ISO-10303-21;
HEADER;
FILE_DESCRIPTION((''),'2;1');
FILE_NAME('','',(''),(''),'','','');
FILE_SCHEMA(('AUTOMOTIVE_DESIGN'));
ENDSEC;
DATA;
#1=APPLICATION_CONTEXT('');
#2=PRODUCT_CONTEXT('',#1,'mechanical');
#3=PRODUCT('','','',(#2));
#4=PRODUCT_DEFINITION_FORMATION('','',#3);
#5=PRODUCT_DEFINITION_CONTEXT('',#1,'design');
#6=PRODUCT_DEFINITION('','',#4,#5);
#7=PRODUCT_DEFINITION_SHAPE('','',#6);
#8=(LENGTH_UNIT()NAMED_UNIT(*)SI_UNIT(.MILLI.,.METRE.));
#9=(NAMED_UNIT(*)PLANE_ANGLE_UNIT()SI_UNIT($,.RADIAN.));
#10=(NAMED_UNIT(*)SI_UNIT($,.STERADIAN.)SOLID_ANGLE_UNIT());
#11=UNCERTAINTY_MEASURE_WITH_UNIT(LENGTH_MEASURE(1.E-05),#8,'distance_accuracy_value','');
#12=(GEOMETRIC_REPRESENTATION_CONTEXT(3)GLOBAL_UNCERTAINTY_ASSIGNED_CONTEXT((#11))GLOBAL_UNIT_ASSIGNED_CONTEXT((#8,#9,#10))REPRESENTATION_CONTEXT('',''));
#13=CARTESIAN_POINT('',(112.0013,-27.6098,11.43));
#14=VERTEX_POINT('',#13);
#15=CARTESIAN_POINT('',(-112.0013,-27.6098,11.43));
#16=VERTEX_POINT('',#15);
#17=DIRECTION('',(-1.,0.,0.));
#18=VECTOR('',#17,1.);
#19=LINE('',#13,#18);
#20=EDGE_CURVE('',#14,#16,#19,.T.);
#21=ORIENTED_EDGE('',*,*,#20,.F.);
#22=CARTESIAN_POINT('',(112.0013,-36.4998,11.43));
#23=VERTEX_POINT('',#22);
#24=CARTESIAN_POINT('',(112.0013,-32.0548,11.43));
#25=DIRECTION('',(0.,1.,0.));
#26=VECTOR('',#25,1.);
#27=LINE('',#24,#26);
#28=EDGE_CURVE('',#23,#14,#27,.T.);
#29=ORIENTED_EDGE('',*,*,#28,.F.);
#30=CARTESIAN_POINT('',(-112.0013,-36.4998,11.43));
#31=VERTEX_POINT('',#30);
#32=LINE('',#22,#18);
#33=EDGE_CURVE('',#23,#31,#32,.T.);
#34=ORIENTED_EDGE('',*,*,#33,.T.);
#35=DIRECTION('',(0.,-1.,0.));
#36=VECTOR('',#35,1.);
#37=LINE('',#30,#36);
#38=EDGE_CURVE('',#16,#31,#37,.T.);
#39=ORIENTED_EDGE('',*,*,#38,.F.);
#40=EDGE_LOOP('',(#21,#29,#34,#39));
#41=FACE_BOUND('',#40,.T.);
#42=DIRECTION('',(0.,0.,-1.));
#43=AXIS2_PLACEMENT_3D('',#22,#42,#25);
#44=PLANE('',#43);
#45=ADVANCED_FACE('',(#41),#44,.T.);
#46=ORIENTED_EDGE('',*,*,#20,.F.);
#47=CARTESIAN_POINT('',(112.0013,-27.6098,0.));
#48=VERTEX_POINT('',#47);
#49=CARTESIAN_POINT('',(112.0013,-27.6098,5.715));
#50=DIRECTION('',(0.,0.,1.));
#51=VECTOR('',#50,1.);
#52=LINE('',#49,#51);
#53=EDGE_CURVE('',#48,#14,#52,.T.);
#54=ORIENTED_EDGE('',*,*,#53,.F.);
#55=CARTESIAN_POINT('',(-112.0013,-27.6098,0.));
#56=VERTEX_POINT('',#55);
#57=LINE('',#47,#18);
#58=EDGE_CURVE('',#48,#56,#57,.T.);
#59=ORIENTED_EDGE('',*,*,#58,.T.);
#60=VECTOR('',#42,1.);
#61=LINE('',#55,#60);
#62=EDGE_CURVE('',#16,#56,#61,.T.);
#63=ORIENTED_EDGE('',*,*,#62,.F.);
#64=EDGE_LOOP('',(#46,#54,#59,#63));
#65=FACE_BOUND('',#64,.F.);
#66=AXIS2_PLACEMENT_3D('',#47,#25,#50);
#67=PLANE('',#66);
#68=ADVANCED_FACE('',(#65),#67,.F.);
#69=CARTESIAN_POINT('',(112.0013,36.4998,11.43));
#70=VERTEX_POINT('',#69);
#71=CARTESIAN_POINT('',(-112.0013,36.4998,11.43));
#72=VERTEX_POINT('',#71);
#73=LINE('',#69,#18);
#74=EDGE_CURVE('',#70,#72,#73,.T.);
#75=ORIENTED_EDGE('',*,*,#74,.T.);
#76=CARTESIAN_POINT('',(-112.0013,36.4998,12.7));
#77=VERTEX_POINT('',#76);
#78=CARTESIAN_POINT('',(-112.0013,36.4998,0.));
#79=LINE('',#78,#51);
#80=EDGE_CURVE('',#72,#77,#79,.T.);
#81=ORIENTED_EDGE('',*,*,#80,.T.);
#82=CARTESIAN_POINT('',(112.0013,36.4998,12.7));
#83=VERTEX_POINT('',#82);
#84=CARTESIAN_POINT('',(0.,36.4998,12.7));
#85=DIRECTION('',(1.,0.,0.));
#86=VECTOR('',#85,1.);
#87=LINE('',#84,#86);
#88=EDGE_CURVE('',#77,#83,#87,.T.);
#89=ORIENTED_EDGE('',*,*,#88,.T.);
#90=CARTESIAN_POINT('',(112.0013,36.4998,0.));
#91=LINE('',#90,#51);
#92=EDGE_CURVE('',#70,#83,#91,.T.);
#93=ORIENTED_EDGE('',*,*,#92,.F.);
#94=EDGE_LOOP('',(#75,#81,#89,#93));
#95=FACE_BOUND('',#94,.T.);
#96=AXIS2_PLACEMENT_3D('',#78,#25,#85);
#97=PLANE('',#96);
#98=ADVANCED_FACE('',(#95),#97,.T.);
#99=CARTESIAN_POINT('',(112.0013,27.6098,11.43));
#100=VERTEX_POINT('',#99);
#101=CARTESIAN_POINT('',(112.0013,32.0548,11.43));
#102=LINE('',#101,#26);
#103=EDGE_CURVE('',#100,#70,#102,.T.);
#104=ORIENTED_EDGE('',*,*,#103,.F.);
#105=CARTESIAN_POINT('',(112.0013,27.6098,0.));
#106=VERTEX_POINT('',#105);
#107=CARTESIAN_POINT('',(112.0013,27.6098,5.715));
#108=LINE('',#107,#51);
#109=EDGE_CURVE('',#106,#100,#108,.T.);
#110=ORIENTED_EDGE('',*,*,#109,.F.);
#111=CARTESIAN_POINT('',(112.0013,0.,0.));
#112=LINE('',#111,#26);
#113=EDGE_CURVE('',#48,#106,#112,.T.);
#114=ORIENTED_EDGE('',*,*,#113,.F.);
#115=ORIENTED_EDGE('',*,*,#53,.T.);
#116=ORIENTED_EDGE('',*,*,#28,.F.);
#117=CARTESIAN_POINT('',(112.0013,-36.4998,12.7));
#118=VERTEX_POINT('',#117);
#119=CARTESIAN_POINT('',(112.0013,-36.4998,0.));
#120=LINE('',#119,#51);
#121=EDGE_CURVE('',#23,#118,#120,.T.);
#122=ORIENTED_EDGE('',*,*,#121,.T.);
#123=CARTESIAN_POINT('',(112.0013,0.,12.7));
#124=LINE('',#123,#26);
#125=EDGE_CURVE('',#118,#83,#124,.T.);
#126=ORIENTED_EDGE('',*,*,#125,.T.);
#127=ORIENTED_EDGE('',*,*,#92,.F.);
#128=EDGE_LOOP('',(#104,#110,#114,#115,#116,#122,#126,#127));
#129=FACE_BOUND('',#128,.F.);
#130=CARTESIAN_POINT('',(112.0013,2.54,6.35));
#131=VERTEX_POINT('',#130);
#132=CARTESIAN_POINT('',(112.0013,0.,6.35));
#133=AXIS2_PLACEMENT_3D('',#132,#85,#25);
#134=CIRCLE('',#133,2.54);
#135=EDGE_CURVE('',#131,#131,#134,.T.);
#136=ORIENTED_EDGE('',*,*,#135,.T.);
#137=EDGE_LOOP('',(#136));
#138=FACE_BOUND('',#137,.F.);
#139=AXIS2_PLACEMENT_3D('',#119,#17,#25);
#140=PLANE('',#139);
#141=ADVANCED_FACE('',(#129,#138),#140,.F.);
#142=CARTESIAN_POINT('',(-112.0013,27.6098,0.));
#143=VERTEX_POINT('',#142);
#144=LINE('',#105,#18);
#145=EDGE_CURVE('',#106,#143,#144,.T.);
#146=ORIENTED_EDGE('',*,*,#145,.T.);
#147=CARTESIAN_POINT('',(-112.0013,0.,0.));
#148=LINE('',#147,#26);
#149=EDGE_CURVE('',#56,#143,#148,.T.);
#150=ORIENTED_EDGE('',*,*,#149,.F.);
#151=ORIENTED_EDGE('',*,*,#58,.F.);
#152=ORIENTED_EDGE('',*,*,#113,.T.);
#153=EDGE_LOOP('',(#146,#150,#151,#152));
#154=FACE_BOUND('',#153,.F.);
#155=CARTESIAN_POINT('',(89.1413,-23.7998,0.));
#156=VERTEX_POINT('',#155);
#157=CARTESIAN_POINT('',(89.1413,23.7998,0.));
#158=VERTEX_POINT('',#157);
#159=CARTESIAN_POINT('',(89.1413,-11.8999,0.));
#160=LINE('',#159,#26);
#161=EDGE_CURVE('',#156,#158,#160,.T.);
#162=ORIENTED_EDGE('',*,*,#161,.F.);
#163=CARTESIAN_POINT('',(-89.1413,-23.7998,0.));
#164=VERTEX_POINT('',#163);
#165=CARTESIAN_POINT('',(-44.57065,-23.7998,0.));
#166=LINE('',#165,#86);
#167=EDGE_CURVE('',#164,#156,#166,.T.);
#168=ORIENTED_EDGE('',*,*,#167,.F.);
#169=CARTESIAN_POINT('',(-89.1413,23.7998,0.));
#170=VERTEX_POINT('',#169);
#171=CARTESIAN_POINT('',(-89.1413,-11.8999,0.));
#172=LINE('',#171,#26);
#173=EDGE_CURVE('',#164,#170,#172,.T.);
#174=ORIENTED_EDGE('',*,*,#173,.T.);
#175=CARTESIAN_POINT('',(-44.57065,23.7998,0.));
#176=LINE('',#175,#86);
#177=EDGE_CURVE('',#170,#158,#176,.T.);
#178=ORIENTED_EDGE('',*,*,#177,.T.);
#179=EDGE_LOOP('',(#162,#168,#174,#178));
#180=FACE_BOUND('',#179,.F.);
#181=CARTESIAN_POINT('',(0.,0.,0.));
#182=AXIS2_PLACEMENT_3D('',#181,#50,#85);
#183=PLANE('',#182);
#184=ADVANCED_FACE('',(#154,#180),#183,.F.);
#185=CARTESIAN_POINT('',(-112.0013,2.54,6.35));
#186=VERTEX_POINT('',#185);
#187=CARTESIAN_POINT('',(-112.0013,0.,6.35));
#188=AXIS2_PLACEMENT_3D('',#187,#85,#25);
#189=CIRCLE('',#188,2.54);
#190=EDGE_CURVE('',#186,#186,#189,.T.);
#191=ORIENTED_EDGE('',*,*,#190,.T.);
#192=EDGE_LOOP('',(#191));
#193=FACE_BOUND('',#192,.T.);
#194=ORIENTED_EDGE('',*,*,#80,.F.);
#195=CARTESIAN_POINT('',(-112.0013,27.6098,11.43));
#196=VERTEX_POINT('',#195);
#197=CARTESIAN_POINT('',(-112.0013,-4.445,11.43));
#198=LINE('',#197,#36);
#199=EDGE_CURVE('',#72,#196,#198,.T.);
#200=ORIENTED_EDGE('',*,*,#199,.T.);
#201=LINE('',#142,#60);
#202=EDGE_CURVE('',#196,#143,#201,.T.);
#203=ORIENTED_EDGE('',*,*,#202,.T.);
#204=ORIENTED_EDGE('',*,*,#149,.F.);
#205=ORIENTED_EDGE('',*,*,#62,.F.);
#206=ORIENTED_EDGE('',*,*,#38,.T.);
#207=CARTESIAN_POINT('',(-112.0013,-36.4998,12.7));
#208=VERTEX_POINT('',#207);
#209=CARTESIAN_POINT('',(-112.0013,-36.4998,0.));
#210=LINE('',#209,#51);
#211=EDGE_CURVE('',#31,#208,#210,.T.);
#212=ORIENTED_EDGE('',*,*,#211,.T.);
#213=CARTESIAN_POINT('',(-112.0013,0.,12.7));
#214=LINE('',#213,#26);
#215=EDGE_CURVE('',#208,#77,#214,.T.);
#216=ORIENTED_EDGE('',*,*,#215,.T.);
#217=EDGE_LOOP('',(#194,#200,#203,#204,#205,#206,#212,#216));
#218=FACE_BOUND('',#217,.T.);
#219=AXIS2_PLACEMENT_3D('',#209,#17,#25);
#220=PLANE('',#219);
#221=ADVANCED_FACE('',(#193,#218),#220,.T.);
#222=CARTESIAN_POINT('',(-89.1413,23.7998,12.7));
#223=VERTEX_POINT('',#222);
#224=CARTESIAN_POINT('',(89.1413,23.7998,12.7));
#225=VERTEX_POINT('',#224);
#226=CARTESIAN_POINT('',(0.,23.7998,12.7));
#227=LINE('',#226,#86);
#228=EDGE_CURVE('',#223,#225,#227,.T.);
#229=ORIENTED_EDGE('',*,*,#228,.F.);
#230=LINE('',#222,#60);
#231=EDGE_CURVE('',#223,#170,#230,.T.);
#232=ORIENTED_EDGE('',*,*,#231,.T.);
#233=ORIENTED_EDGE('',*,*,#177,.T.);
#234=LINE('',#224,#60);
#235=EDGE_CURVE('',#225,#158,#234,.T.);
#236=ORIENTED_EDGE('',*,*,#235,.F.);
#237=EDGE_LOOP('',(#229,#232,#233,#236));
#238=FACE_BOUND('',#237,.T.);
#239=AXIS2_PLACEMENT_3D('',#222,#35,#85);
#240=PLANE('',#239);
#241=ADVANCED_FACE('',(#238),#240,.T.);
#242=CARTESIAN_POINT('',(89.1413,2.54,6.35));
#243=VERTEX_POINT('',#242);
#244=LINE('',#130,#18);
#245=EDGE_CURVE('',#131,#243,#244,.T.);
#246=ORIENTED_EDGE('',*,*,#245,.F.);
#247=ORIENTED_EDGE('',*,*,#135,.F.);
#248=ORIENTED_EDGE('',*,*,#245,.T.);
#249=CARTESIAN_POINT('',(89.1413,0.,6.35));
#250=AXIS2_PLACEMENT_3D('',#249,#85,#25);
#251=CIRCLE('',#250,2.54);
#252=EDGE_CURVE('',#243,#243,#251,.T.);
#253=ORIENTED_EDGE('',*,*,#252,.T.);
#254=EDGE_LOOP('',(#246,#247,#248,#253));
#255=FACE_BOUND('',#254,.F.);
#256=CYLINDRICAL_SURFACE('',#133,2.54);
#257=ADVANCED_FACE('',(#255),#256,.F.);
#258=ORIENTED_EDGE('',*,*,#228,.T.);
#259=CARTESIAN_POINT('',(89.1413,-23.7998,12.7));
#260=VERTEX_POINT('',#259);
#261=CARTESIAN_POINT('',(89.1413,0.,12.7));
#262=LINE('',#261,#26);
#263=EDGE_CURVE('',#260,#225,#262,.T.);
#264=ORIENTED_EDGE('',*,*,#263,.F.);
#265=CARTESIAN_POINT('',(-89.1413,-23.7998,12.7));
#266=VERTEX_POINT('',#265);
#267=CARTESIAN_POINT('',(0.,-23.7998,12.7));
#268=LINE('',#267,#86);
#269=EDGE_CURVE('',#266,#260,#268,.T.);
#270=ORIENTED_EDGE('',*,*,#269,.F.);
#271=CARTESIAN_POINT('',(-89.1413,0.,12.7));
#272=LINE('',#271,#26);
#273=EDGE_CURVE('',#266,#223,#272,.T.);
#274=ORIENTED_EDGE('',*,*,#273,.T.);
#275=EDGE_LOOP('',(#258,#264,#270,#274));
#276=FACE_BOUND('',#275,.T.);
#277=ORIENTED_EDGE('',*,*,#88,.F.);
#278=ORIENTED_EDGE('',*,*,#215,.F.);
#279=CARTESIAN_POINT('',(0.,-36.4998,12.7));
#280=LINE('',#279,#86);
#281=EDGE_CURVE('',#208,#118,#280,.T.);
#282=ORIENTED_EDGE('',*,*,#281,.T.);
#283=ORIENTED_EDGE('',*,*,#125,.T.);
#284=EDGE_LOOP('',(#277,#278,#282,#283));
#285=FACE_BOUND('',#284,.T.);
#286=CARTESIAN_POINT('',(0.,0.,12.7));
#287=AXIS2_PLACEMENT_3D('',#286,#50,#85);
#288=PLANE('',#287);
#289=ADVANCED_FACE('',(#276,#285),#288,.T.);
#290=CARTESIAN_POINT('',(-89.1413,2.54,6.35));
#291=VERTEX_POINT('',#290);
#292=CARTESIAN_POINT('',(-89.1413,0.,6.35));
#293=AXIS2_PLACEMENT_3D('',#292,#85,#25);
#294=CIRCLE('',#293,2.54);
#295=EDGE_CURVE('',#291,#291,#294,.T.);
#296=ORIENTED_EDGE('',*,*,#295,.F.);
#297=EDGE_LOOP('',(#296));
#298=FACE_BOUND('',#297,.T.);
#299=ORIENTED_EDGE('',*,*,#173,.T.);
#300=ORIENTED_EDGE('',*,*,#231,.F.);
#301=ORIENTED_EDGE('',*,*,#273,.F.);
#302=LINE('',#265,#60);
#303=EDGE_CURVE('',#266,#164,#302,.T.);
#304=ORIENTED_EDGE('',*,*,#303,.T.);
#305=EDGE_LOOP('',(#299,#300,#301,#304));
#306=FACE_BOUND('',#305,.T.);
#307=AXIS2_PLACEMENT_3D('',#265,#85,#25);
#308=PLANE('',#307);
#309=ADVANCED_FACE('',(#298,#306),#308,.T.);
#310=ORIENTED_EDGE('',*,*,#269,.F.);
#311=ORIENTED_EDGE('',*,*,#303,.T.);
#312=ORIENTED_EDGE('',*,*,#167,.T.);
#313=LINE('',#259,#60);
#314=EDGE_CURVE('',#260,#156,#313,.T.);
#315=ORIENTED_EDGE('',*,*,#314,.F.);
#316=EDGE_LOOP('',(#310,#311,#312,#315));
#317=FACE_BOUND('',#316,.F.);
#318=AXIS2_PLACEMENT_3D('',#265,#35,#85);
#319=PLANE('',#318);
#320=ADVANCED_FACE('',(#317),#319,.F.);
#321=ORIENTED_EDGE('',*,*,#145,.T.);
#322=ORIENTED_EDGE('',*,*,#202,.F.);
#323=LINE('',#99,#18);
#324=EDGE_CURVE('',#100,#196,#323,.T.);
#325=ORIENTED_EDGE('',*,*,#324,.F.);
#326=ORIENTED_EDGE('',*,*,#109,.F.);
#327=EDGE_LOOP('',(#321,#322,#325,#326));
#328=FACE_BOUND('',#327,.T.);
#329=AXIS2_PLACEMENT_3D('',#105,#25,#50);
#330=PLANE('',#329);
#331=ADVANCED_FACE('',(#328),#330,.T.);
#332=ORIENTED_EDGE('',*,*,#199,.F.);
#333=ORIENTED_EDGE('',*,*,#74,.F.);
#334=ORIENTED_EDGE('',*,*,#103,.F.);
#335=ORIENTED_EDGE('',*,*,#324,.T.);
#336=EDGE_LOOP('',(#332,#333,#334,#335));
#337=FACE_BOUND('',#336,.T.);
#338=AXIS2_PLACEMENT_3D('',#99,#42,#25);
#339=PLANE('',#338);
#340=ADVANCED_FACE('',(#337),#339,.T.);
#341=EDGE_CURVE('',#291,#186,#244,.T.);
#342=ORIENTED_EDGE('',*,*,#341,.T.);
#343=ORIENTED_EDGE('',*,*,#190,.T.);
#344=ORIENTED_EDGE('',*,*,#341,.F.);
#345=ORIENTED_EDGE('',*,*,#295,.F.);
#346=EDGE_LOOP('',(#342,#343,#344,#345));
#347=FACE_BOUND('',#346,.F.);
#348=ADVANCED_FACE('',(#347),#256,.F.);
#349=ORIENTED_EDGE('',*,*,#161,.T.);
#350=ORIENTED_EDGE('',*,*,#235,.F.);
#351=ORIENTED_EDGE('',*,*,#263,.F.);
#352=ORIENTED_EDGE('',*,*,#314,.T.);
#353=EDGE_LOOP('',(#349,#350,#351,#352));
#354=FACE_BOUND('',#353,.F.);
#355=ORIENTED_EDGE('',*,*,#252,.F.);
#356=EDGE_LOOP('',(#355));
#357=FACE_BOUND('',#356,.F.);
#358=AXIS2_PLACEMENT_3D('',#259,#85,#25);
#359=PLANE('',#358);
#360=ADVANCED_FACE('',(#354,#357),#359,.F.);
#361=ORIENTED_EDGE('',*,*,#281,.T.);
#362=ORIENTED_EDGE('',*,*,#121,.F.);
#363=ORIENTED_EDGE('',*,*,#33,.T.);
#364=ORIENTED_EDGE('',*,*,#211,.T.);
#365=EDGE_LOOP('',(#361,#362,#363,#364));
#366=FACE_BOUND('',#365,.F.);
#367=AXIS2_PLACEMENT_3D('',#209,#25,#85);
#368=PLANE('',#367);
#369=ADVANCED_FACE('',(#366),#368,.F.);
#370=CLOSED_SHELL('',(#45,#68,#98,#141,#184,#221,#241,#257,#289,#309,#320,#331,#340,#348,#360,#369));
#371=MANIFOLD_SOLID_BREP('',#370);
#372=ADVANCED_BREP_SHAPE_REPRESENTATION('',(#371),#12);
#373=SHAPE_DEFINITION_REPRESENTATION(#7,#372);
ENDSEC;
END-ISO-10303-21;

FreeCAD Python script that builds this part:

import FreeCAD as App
import Part
import Sketcher
Q = App.Units.Quantity

doc = App.newDocument("Part")
params = doc.addObject("Spreadsheet::Sheet", "Params")
for row, (alias, value) in enumerate([
    ("sketch1_width", "8.819 in"),
    ("sketch1_height", "2.874 in"),
    ("pad1_length", "0.5 in"),
    ("sketch2_width", "7.019 in"),
    ("sketch2_height", "1.874 in"),
    ("pocket1_length", "1 in"),
    ("sketch3_width", "0.35 in"),
    ("sketch3_height", "0.45 in"),
    ("pocket2_length", "20 in"),
    ("sketch4_width", "0.35 in"),
    ("sketch4_height", "0.45 in"),
    ("pocket3_length", "20 in"),
    ("sketch5_diameter", "0.2 in"),
    ("pocket4_length", "20 in"),
], start=1):
    params.set(f"A{row}", alias)
    params.set(f"B{row}", "=" + value)
    params.setAlias(f"B{row}", alias)

body = doc.addObject("PartDesign::Body", "Body")

# Sketch on XY plane
sketch1 = body.newObject("Sketcher::SketchObject", "Sketch")
sketch1.AttachmentSupport = (doc.getObject("XY_Plane"), [""])
sketch1.MapMode = "FlatFace"
sketch1.addGeometry([
    Part.LineSegment(App.Vector(-112, 36, 0), App.Vector(-112, -36, 0)),
    Part.LineSegment(App.Vector(-112, -36, 0), App.Vector(112, -36, 0)),
    Part.LineSegment(App.Vector(112, -36, 0), App.Vector(112, 36, 0)),
    Part.LineSegment(App.Vector(112, 36, 0), App.Vector(-112, 36, 0)),
], False)
sketch1.addConstraint([
    Sketcher.Constraint("Coincident", 0, 2, 1, 1),
    Sketcher.Constraint("Coincident", 1, 2, 2, 1),
    Sketcher.Constraint("Coincident", 2, 2, 3, 1),
    Sketcher.Constraint("Coincident", 3, 2, 0, 1),
    Sketcher.Constraint("Vertical", 0),
    Sketcher.Constraint("Horizontal", 1),
    Sketcher.Constraint("Vertical", 2),
    Sketcher.Constraint("Horizontal", 3),
    Sketcher.Constraint("Symmetric", 0, 2, 2, 2, -1, 1),
    Sketcher.Constraint("DistanceX", 1, 1, 1, 2, Q("8.819 in")),
    Sketcher.Constraint("DistanceY", 0, 2, 0, 1, Q("2.874 in")),
])
sketch1.setExpression("Constraints[9]", "Params.sketch1_width")
sketch1.setExpression("Constraints[10]", "Params.sketch1_height")
pad1 = body.newObject("PartDesign::Pad", "Pad")
pad1.Profile = sketch1
pad1.setExpression("Length", "Params.pad1_length")

# Sketch on XY plane
sketch2 = body.newObject("Sketcher::SketchObject", "Sketch001")
sketch2.AttachmentSupport = (doc.getObject("XY_Plane"), [""])
sketch2.MapMode = "FlatFace"
sketch2.AttachmentOffset = App.Placement(App.Vector(0, 0, 0.5 * 25.4), App.Rotation())
sketch2.addGeometry([
    Part.LineSegment(App.Vector(-89, 24, 0), App.Vector(-89, -24, 0)),
    Part.LineSegment(App.Vector(-89, -24, 0), App.Vector(89, -24, 0)),
    Part.LineSegment(App.Vector(89, -24, 0), App.Vector(89, 24, 0)),
    Part.LineSegment(App.Vector(89, 24, 0), App.Vector(-89, 24, 0)),
], False)
sketch2.addConstraint([
    Sketcher.Constraint("Coincident", 0, 2, 1, 1),
    Sketcher.Constraint("Coincident", 1, 2, 2, 1),
    Sketcher.Constraint("Coincident", 2, 2, 3, 1),
    Sketcher.Constraint("Coincident", 3, 2, 0, 1),
    Sketcher.Constraint("Vertical", 0),
    Sketcher.Constraint("Horizontal", 1),
    Sketcher.Constraint("Vertical", 2),
    Sketcher.Constraint("Horizontal", 3),
    Sketcher.Constraint("Symmetric", 0, 2, 2, 2, -1, 1),
    Sketcher.Constraint("DistanceX", 1, 1, 1, 2, Q("7.019 in")),
    Sketcher.Constraint("DistanceY", 0, 2, 0, 1, Q("1.874 in")),
])
sketch2.setExpression("Constraints[9]", "Params.sketch2_width")
sketch2.setExpression("Constraints[10]", "Params.sketch2_height")
pocket1 = body.newObject("PartDesign::Pocket", "Pocket")
pocket1.Profile = sketch2
pocket1.setExpression("Length", "Params.pocket1_length")

# Sketch on YZ plane
sketch3 = body.newObject("Sketcher::SketchObject", "Sketch002")
sketch3.AttachmentSupport = (doc.getObject("YZ_Plane"), [""])
sketch3.MapMode = "FlatFace"
sketch3.AttachmentOffset = App.Placement(App.Vector(0, 0, 4.4095 * 25.4), App.Rotation())
sketch3.addGeometry([
    Part.LineSegment(App.Vector(-36, 11, 0), App.Vector(-36, 0, 0)),
    Part.LineSegment(App.Vector(-36, 0, 0), App.Vector(-28, 0, 0)),
    Part.LineSegment(App.Vector(-28, 0, 0), App.Vector(-28, 11, 0)),
    Part.LineSegment(App.Vector(-28, 11, 0), App.Vector(-36, 11, 0)),
], False)
sketch3.addConstraint([
    Sketcher.Constraint("Coincident", 0, 2, 1, 1),
    Sketcher.Constraint("Coincident", 1, 2, 2, 1),
    Sketcher.Constraint("Coincident", 2, 2, 3, 1),
    Sketcher.Constraint("Coincident", 3, 2, 0, 1),
    Sketcher.Constraint("Vertical", 0),
    Sketcher.Constraint("Horizontal", 1),
    Sketcher.Constraint("Vertical", 2),
    Sketcher.Constraint("Horizontal", 3),
    Sketcher.Constraint("PointOnObject", 0, 2, -1),
    Sketcher.Constraint("DistanceX", 1, 1, 1, 2, Q("0.35 in")),
    Sketcher.Constraint("DistanceY", 0, 2, 0, 1, Q("0.45 in")),
    Sketcher.Constraint("DistanceX", 0, 2, -1, 1, Q("1.437 in")),
])
sketch3.setExpression("Constraints[9]", "Params.sketch3_width")
sketch3.setExpression("Constraints[10]", "Params.sketch3_height")
pocket2 = body.newObject("PartDesign::Pocket", "Pocket001")
pocket2.Profile = sketch3
pocket2.setExpression("Length", "Params.pocket2_length")

# Sketch on YZ plane
sketch4 = body.newObject("Sketcher::SketchObject", "Sketch003")
sketch4.AttachmentSupport = (doc.getObject("YZ_Plane"), [""])
sketch4.MapMode = "FlatFace"
sketch4.AttachmentOffset = App.Placement(App.Vector(0, 0, 4.4095 * 25.4), App.Rotation())
sketch4.addGeometry([
    Part.LineSegment(App.Vector(28, 11, 0), App.Vector(28, 0, 0)),
    Part.LineSegment(App.Vector(28, 0, 0), App.Vector(36, 0, 0)),
    Part.LineSegment(App.Vector(36, 0, 0), App.Vector(36, 11, 0)),
    Part.LineSegment(App.Vector(36, 11, 0), App.Vector(28, 11, 0)),
], False)
sketch4.addConstraint([
    Sketcher.Constraint("Coincident", 0, 2, 1, 1),
    Sketcher.Constraint("Coincident", 1, 2, 2, 1),
    Sketcher.Constraint("Coincident", 2, 2, 3, 1),
    Sketcher.Constraint("Coincident", 3, 2, 0, 1),
    Sketcher.Constraint("Vertical", 0),
    Sketcher.Constraint("Horizontal", 1),
    Sketcher.Constraint("Vertical", 2),
    Sketcher.Constraint("Horizontal", 3),
    Sketcher.Constraint("PointOnObject", 0, 2, -1),
    Sketcher.Constraint("DistanceX", 1, 1, 1, 2, Q("0.35 in")),
    Sketcher.Constraint("DistanceY", 0, 2, 0, 1, Q("0.45 in")),
    Sketcher.Constraint("DistanceX", -1, 1, 0, 2, Q("1.087 in")),
])
sketch4.setExpression("Constraints[9]", "Params.sketch4_width")
sketch4.setExpression("Constraints[10]", "Params.sketch4_height")
pocket3 = body.newObject("PartDesign::Pocket", "Pocket002")
pocket3.Profile = sketch4
pocket3.setExpression("Length", "Params.pocket3_length")

# Sketch on YZ plane
sketch5 = body.newObject("Sketcher::SketchObject", "Sketch004")
sketch5.AttachmentSupport = (doc.getObject("YZ_Plane"), [""])
sketch5.MapMode = "FlatFace"
sketch5.AttachmentOffset = App.Placement(App.Vector(0, 0, 4.4095 * 25.4), App.Rotation())
sketch5.addGeometry(Part.Circle(App.Vector(0, 6.3, 0), App.Vector(0, 0, 1), 2.5), False)
sketch5.addConstraint([
    Sketcher.Constraint("PointOnObject", 0, 3, -2),
    Sketcher.Constraint("Diameter", 0, Q("0.2 in")),
    Sketcher.Constraint("DistanceY", -1, 1, 0, 3, Q("0.25 in")),
])
sketch5.setExpression("Constraints[1]", "Params.sketch5_diameter")
pocket4 = body.newObject("PartDesign::Pocket", "Pocket003")
pocket4.Profile = sketch5
pocket4.setExpression("Length", "Params.pocket4_length")

doc.recompute()
